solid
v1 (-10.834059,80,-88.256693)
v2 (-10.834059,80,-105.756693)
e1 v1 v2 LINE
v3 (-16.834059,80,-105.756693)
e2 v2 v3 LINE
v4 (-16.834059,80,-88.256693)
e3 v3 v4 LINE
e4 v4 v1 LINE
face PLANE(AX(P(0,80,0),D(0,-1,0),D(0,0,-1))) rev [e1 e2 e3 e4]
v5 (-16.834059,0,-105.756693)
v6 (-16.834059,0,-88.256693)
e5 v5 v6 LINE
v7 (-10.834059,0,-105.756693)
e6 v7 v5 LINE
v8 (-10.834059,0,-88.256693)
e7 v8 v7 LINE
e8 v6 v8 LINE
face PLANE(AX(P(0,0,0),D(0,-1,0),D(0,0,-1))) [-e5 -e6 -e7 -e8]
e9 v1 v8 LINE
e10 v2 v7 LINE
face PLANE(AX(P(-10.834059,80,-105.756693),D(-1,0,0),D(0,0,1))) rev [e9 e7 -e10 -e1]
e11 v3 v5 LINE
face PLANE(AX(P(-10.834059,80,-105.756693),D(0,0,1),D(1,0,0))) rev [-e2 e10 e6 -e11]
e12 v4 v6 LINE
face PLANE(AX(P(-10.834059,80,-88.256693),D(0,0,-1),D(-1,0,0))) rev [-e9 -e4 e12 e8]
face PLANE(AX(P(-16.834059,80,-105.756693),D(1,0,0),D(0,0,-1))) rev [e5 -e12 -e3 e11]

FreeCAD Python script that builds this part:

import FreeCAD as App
import Part
import Sketcher
Q = App.Units.Quantity


def add_polygon(sketch, points):
    """Adds a closed chain of lines whose ends are joined by coincident constraints."""
    first, n = sketch.GeometryCount, len(points)
    for a, b in zip(points, points[1:] + points[:1]):
        sketch.addGeometry(Part.LineSegment(App.Vector(*a, 0), App.Vector(*b, 0)), False)
    for i in range(n):
        sketch.addConstraint(Sketcher.Constraint("Coincident", first + i, 2, first + (i + 1) % n, 1))

doc = App.newDocument("Part")
body = doc.addObject("PartDesign::Body", "Body")

# Sketch on XZ plane
sketch1 = doc.addObject("Sketcher::SketchObject", "Sketch")
body.addObject(sketch1)
sketch1.AttachmentSupport = (doc.XZ_Plane, [""])
sketch1.MapMode = "FlatFace"
add_polygon(sketch1, [(-10.834059, -88.256693), (-10.834059, -105.756693), (-16.834059, -105.756693), (-16.834059, -88.256693)])  # lines 0-3
sketch1.addConstraint(Sketcher.Constraint("Vertical", 0))
sketch1.addConstraint(Sketcher.Constraint("Horizontal", 1))
sketch1.addConstraint(Sketcher.Constraint("Vertical", 2))
sketch1.addConstraint(Sketcher.Constraint("Horizontal", 3))
sketch1.addConstraint(Sketcher.Constraint("DistanceX", 1, 2, 1, 1, Q("6 mm")))
sketch1.addConstraint(Sketcher.Constraint("DistanceY", 0, 2, 0, 1, Q("17.5 mm")))
sketch1.addConstraint(Sketcher.Constraint("DistanceX", 0, 2, -1, 1, Q("10.834059 mm")))
sketch1.addConstraint(Sketcher.Constraint("DistanceY", 0, 2, -1, 1, Q("105.756693 mm")))
pad1 = doc.addObject("PartDesign::Pad", "Pad")
body.addObject(pad1)
pad1.Profile = sketch1
pad1.Length = 80
pad1.Reversed = True

doc.recompute()
